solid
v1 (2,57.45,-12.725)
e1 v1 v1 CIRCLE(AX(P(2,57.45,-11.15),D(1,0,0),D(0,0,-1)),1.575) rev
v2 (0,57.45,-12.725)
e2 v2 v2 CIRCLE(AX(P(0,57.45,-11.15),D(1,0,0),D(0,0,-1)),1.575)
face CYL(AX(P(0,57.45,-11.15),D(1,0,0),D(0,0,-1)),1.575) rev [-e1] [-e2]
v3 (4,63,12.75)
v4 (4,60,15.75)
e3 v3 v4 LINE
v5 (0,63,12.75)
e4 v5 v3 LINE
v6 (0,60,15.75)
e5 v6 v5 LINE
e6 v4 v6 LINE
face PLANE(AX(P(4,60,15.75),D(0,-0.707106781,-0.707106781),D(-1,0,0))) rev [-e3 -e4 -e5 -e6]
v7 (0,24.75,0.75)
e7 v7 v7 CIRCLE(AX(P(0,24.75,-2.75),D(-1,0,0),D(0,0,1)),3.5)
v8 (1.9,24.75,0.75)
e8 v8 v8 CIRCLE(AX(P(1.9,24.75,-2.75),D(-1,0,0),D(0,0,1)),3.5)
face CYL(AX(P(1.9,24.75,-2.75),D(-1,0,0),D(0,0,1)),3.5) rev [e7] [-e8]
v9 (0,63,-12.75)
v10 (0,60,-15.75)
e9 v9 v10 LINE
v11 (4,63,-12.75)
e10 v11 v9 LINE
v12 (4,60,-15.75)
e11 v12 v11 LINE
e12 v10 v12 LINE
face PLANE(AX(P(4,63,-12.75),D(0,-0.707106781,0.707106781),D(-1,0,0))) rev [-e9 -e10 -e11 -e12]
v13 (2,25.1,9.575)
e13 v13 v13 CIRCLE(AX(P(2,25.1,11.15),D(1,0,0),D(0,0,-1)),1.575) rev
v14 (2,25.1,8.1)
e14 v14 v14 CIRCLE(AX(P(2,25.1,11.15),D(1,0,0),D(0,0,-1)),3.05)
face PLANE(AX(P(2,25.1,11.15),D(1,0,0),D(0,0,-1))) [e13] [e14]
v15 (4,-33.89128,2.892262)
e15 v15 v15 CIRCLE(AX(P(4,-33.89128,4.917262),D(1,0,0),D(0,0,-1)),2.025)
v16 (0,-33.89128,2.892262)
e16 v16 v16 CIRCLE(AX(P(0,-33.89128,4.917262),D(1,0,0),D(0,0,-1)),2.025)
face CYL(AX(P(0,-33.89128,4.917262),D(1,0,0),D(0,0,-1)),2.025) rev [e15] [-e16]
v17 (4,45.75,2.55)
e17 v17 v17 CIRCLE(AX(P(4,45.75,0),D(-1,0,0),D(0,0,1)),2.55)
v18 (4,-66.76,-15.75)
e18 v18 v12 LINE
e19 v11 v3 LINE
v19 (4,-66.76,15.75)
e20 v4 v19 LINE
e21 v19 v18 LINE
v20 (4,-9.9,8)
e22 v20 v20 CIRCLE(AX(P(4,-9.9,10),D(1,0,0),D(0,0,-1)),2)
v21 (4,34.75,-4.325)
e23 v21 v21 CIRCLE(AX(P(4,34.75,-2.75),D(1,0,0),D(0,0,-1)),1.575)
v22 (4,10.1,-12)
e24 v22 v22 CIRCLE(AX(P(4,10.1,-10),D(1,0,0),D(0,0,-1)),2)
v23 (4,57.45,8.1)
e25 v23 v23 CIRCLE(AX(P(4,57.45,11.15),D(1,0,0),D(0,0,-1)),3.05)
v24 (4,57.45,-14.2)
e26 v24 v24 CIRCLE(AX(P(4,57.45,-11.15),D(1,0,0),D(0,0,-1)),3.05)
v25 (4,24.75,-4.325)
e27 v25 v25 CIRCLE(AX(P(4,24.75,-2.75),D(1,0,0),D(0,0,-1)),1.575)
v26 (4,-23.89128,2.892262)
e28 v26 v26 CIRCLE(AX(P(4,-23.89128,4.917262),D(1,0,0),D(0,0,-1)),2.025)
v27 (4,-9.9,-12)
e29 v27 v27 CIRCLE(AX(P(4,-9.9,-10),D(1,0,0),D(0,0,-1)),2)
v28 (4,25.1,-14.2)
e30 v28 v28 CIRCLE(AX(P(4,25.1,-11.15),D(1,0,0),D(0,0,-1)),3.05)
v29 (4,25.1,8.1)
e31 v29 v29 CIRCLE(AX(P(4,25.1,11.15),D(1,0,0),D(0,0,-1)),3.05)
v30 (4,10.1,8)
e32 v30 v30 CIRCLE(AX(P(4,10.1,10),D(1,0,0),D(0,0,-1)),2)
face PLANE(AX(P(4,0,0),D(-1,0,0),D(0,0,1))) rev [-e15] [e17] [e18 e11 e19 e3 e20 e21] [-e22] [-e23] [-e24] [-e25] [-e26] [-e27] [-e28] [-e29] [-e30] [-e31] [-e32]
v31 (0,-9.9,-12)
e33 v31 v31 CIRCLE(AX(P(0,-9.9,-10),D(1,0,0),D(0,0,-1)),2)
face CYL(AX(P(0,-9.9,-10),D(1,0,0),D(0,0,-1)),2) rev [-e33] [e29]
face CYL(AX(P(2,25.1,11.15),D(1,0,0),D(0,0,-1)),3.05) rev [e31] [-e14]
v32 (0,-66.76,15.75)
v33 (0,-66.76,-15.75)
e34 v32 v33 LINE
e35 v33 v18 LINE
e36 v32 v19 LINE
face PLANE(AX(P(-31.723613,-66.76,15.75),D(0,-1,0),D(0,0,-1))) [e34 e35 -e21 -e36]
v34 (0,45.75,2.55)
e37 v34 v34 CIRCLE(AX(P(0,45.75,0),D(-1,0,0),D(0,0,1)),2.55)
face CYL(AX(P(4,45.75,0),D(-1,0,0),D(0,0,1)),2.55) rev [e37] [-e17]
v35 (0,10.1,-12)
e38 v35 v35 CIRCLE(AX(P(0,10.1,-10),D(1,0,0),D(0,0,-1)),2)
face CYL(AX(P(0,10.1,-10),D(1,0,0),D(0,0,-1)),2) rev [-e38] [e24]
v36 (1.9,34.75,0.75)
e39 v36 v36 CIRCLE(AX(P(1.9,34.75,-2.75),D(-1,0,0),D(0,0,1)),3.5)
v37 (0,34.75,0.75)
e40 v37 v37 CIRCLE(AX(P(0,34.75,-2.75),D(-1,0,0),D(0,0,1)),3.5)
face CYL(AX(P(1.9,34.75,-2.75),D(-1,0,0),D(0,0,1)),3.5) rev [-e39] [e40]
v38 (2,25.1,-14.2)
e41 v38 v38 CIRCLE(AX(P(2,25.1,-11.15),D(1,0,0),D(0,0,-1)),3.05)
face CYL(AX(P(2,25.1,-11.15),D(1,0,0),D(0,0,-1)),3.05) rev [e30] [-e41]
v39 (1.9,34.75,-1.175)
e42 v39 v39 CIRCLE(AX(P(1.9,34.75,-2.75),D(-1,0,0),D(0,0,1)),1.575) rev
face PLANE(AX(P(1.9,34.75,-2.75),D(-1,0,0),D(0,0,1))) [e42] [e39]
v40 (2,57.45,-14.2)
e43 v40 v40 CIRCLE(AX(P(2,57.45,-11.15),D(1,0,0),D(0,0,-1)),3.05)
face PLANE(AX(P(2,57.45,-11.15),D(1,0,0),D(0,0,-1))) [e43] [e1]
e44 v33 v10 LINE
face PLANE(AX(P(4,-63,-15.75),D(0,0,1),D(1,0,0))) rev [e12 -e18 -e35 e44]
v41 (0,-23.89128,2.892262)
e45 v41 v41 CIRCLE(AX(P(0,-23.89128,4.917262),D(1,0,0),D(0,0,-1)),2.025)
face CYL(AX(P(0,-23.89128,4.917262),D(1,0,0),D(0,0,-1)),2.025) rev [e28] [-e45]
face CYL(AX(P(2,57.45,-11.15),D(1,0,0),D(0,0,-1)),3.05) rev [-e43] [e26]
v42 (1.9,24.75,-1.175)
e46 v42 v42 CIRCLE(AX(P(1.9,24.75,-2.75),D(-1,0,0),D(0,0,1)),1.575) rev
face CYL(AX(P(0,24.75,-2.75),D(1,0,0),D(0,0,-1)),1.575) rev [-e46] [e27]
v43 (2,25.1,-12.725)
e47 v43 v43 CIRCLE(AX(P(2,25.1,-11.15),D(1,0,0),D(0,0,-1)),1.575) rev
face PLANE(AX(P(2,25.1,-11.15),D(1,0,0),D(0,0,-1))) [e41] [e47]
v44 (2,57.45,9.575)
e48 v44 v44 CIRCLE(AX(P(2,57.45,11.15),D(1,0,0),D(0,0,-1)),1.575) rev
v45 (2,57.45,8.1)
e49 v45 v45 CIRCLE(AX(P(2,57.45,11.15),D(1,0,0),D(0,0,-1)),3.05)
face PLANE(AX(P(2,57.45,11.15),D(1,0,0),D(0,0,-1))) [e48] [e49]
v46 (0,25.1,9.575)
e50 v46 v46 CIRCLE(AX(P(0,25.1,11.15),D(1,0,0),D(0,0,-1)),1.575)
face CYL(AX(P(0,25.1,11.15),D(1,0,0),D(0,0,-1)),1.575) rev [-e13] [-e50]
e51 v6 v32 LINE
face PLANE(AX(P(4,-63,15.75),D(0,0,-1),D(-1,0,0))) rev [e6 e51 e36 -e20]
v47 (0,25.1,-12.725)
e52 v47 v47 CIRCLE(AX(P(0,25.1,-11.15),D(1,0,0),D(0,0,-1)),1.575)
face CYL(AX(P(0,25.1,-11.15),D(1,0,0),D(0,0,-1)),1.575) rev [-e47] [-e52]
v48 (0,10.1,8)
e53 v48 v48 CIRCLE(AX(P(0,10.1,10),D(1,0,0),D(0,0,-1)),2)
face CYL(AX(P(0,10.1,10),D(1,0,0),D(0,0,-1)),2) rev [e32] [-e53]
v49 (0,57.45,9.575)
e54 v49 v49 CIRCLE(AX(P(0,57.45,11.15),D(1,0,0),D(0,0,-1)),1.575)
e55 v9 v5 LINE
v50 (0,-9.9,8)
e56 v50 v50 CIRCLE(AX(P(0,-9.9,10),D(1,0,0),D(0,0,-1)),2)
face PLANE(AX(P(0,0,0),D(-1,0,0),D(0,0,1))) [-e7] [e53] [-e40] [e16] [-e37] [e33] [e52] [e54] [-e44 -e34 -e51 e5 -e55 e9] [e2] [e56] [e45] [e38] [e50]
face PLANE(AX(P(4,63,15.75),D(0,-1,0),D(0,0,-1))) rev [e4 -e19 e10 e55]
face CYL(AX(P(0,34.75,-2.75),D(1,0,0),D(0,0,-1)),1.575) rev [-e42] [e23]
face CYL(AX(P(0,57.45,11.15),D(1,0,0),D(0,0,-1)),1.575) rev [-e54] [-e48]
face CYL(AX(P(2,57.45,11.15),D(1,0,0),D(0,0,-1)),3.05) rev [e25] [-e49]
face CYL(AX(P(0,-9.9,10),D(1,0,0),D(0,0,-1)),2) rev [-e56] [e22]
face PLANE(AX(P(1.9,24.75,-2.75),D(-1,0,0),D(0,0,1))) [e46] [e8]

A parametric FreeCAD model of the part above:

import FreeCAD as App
import Part
import Sketcher

V = App.Vector
Q = App.Units.Quantity


def edges_at(feature, points):
    """Names of the edges that pass closest to the given points."""
    edges = feature.Shape.Edges
    near = lambda p: min(range(len(edges)), key=lambda i: edges[i].distToShape(Part.Vertex(*p))[0])
    return sorted({f"Edge{near(p) + 1}" for p in points})

doc = App.newDocument("Part")
body = doc.addObject("PartDesign::Body", "Body")

# Sketch on YZ plane
sketch1 = body.newObject("Sketcher::SketchObject", "Sketch")
sketch1.AttachmentSupport = (doc.getObject("YZ_Plane"), [""])
sketch1.MapMode = "FlatFace"
sketch1.addGeometry(Part.LineSegment(V(63, 15.75, 0), V(-63, 15.75, 0)), False)
sketch1.addGeometry(Part.LineSegment(V(-63, 15.75, 0), V(-63, -15.75, 0)), False)
sketch1.addGeometry(Part.LineSegment(V(-63, -15.75, 0), V(63, -15.75, 0)), False)
sketch1.addGeometry(Part.LineSegment(V(63, -15.75, 0), V(63, 15.75, 0)), False)
sketch1.addConstraint(Sketcher.Constraint("Coincident", 0, 2, 1, 1))
sketch1.addConstraint(Sketcher.Constraint("Coincident", 1, 2, 2, 1))
sketch1.addConstraint(Sketcher.Constraint("Coincident", 2, 2, 3, 1))
sketch1.addConstraint(Sketcher.Constraint("Coincident", 3, 2, 0, 1))
sketch1.addConstraint(Sketcher.Constraint("Horizontal", 0))
sketch1.addConstraint(Sketcher.Constraint("Vertical", 1))
sketch1.addConstraint(Sketcher.Constraint("Horizontal", 2))
sketch1.addConstraint(Sketcher.Constraint("Vertical", 3))
sketch1.addConstraint(Sketcher.Constraint("Symmetric", 0, 2, 2, 2, -1, 1))
sketch1.addConstraint(Sketcher.Constraint("DistanceX", 0, 2, 0, 1, Q("126 mm")))
sketch1.addConstraint(Sketcher.Constraint("DistanceY", 1, 2, 1, 1, Q("31.5 mm")))
pad1 = body.newObject("PartDesign::Pad", "Pad")
pad1.Profile = sketch1
pad1.Length = 4

# Sketch on YZ plane
sketch2 = body.newObject("Sketcher::SketchObject", "Sketch001")
sketch2.AttachmentSupport = (doc.getObject("YZ_Plane"), [""])
sketch2.MapMode = "FlatFace"
sketch2.AttachmentOffset = App.Placement(V(0, 0, 4), App.Rotation())
sketch2.addGeometry(Part.Circle(V(10.1, 10, 0), V(0, 0, 1), 2), False)
sketch2.addGeometry(Part.Circle(V(10.1, -10, 0), V(0, 0, 1), 2), False)
sketch2.addGeometry(Part.Circle(V(-9.9, 10, 0), V(0, 0, 1), 2), False)
sketch2.addGeometry(Part.Circle(V(-9.9, -10, 0), V(0, 0, 1), 2), False)
sketch2.addConstraint(Sketcher.Constraint("Equal", 0, 1))
sketch2.addConstraint(Sketcher.Constraint("Equal", 1, 2))
sketch2.addConstraint(Sketcher.Constraint("Equal", 2, 3))
sketch2.addConstraint(Sketcher.Constraint("Symmetric", 0, 3, 1, 3, -1))
sketch2.addConstraint(Sketcher.Constraint("Symmetric", 2, 3, 3, 3, -1))
sketch2.addConstraint(Sketcher.Constraint("Horizontal", 0, 3, 2, 3))
sketch2.addConstraint(Sketcher.Constraint("Diameter", 0, Q("4 mm")))
sketch2.addConstraint(Sketcher.Constraint("DistanceY", -1, 1, 0, 3, Q("10 mm")))
sketch2.addConstraint(Sketcher.Constraint("DistanceX", 2, 3, 0, 3, Q("20 mm")))
sketch2.addConstraint(Sketcher.Constraint("DistanceX", -1, 1, 0, 3, Q("10.1 mm")))
pocket1 = body.newObject("PartDesign::Pocket", "Pocket")
pocket1.Profile = sketch2
pocket1.Type = "ThroughAll"

# Sketch on YZ plane
sketch3 = body.newObject("Sketcher::SketchObject", "Sketch002")
sketch3.AttachmentSupport = (doc.getObject("YZ_Plane"), [""])
sketch3.MapMode = "FlatFace"
sketch3.addGeometry(Part.Circle(V(45.75, 0, 0), V(0, 0, 1), 2.55), False)
sketch3.addConstraint(Sketcher.Constraint("PointOnObject", 0, 3, -1))
sketch3.addConstraint(Sketcher.Constraint("Diameter", 0, Q("5.1 mm")))
sketch3.addConstraint(Sketcher.Constraint("DistanceX", -1, 1, 0, 3, Q("45.75 mm")))
pocket2 = body.newObject("PartDesign::Pocket", "Pocket001")
pocket2.Profile = sketch3
pocket2.Type = "ThroughAll"
pocket2.Reversed = True

# Sketch on YZ plane
sketch4 = body.newObject("Sketcher::SketchObject", "Sketch003")
sketch4.AttachmentSupport = (doc.getObject("YZ_Plane"), [""])
sketch4.MapMode = "FlatFace"
sketch4.AttachmentOffset = App.Placement(V(0, 0, 4), App.Rotation())
sketch4.addGeometry(Part.Circle(V(34.75, -2.75, 0), V(0, 0, 1), 1.575), False)
sketch4.addGeometry(Part.Circle(V(24.75, -2.75, 0), V(0, 0, 1), 1.575), False)
sketch4.addConstraint(Sketcher.Constraint("Equal", 0, 1))
sketch4.addConstraint(Sketcher.Constraint("Horizontal", 0, 3, 1, 3))
sketch4.addConstraint(Sketcher.Constraint("Diameter", 0, Q("3.15 mm")))
sketch4.addConstraint(Sketcher.Constraint("DistanceX", 1, 3, 0, 3, Q("10 mm")))
sketch4.addConstraint(Sketcher.Constraint("DistanceX", -1, 1, 0, 3, Q("34.75 mm")))
sketch4.addConstraint(Sketcher.Constraint("DistanceY", 0, 3, -1, 1, Q("2.75 mm")))
pocket3 = body.newObject("PartDesign::Pocket", "Pocket002")
pocket3.Profile = sketch4
pocket3.Type = "ThroughAll"

# Sketch on YZ plane
sketch5 = body.newObject("Sketcher::SketchObject", "Sketch004")
sketch5.AttachmentSupport = (doc.getObject("YZ_Plane"), [""])
sketch5.MapMode = "FlatFace"
sketch5.AttachmentOffset = App.Placement(V(0, 0, 4), App.Rotation())
sketch5.addGeometry(Part.Circle(V(57.45, 11.15, 0), V(0, 0, 1), 1.575), False)
sketch5.addGeometry(Part.Circle(V(57.45, -11.15, 0), V(0, 0, 1), 1.575), False)
sketch5.addGeometry(Part.Circle(V(25.1, 11.15, 0), V(0, 0, 1), 1.575), False)
sketch5.addGeometry(Part.Circle(V(25.1, -11.15, 0), V(0, 0, 1), 1.575), False)
sketch5.addConstraint(Sketcher.Constraint("Equal", 0, 1))
sketch5.addConstraint(Sketcher.Constraint("Equal", 1, 2))
sketch5.addConstraint(Sketcher.Constraint("Equal", 2, 3))
sketch5.addConstraint(Sketcher.Constraint("Symmetric", 0, 3, 1, 3, -1))
sketch5.addConstraint(Sketcher.Constraint("Symmetric", 2, 3, 3, 3, -1))
sketch5.addConstraint(Sketcher.Constraint("Horizontal", 0, 3, 2, 3))
sketch5.addConstraint(Sketcher.Constraint("Diameter", 0, Q("3.15 mm")))
sketch5.addConstraint(Sketcher.Constraint("DistanceX", -1, 1, 2, 3, Q("25.1 mm")))
sketch5.addConstraint(Sketcher.Constraint("DistanceY", 1, 3, 0, 3, Q("22.3 mm")))
sketch5.addConstraint(Sketcher.Constraint("DistanceX", -1, 1, 0, 3, Q("57.45 mm")))
pocket4 = body.newObject("PartDesign::Pocket", "Pocket003")
pocket4.Profile = sketch5
pocket4.Type = "ThroughAll"
doc.recompute()

chamfer = body.newObject("PartDesign::Chamfer", "Chamfer")
chamfer.Base = (pocket4, edges_at(pocket4, [(2, 63, 15.75), (2, 63, -15.75)]))
chamfer.Size = 3

# Sketch on YZ plane
sketch6 = body.newObject("Sketcher::SketchObject", "Sketch005")
sketch6.AttachmentSupport = (doc.getObject("YZ_Plane"), [""])
sketch6.MapMode = "FlatFace"
sketch6.addGeometry(Part.Circle(V(24.75, -2.75, 0), V(0, 0, 1), 3.5), False)
sketch6.addGeometry(Part.Circle(V(34.75, -2.75, 0), V(0, 0, 1), 3.5), False)
sketch6.addConstraint(Sketcher.Constraint("Equal", 0, 1))
sketch6.addConstraint(Sketcher.Constraint("Horizontal", 0, 3, 1, 3))
sketch6.addConstraint(Sketcher.Constraint("Diameter", 0, Q("7 mm")))
sketch6.addConstraint(Sketcher.Constraint("DistanceX", 0, 3, 1, 3, Q("10 mm")))
sketch6.addConstraint(Sketcher.Constraint("DistanceX", -1, 1, 0, 3, Q("24.75 mm")))
sketch6.addConstraint(Sketcher.Constraint("DistanceY", 0, 3, -1, 1, Q("2.75 mm")))
pocket5 = body.newObject("PartDesign::Pocket", "Pocket004")
pocket5.Profile = sketch6
pocket5.Length = 1.9
pocket5.Reversed = True

# Sketch on YZ plane
sketch7 = body.newObject("Sketcher::SketchObject", "Sketch006")
sketch7.AttachmentSupport = (doc.getObject("YZ_Plane"), [""])
sketch7.MapMode = "FlatFace"
sketch7.AttachmentOffset = App.Placement(V(0, 0, 4), App.Rotation())
sketch7.addGeometry(Part.Circle(V(57.45, 11.15, 0), V(0, 0, 1), 3.05), False)
sketch7.addGeometry(Part.Circle(V(57.45, -11.15, 0), V(0, 0, 1), 3.05), False)
sketch7.addGeometry(Part.Circle(V(25.1, -11.15, 0), V(0, 0, 1), 3.05), False)
sketch7.addGeometry(Part.Circle(V(25.1, 11.15, 0), V(0, 0, 1), 3.05), False)
sketch7.addConstraint(Sketcher.Constraint("Equal", 0, 1))
sketch7.addConstraint(Sketcher.Constraint("Equal", 1, 2))
sketch7.addConstraint(Sketcher.Constraint("Equal", 2, 3))
sketch7.addConstraint(Sketcher.Constraint("Symmetric", 0, 3, 1, 3, -1))
sketch7.addConstraint(Sketcher.Constraint("Symmetric", 2, 3, 3, 3, -1))
sketch7.addConstraint(Sketcher.Constraint("Horizontal", 1, 3, 2, 3))
sketch7.addConstraint(Sketcher.Constraint("Diameter", 0, Q("6.1 mm")))
sketch7.addConstraint(Sketcher.Constraint("DistanceX", -1, 1, 2, 3, Q("25.1 mm")))
sketch7.addConstraint(Sketcher.Constraint("DistanceY", 1, 3, 0, 3, Q("22.3 mm")))
sketch7.addConstraint(Sketcher.Constraint("DistanceX", -1, 1, 0, 3, Q("57.45 mm")))
pocket6 = body.newObject("PartDesign::Pocket", "Pocket005")
pocket6.Profile = sketch7
pocket6.Length = 2

# Sketch on YZ plane
sketch8 = body.newObject("Sketcher::SketchObject", "Sketch007")
sketch8.AttachmentSupport = (doc.getObject("YZ_Plane"), [""])
sketch8.MapMode = "FlatFace"
sketch8.AttachmentOffset = App.Placement(V(0, 0, 4), App.Rotation())
sketch8.addGeometry(Part.LineSegment(V(-63, 15.75, 0), V(-66.76, 15.75, 0)), False)
sketch8.addGeometry(Part.LineSegment(V(-66.76, 15.75, 0), V(-66.76, -15.75, 0)), False)
sketch8.addGeometry(Part.LineSegment(V(-66.76, -15.75, 0), V(-63, -15.75, 0)), False)
sketch8.addGeometry(Part.LineSegment(V(-63, -15.75, 0), V(-63, 15.75, 0)), False)
sketch8.addConstraint(Sketcher.Constraint("Coincident", 0, 2, 1, 1))
sketch8.addConstraint(Sketcher.Constraint("Coincident", 1, 2, 2, 1))
sketch8.addConstraint(Sketcher.Constraint("Coincident", 2, 2, 3, 1))
sketch8.addConstraint(Sketcher.Constraint("Coincident", 3, 2, 0, 1))
sketch8.addConstraint(Sketcher.Constraint("Horizontal", 0))
sketch8.addConstraint(Sketcher.Constraint("Vertical", 1))
sketch8.addConstraint(Sketcher.Constraint("Horizontal", 2))
sketch8.addConstraint(Sketcher.Constraint("Vertical", 3))
sketch8.addConstraint(Sketcher.Constraint("DistanceY", 1, 2, 1, 1, Q("31.5 mm")))
sketch8.addConstraint(Sketcher.Constraint("DistanceX", 2, 2, -1, 1, Q("63 mm")))
sketch8.addConstraint(Sketcher.Constraint("DistanceX", 0, 2, 0, 1, Q("3.76 mm")))
sketch8.addConstraint(Sketcher.Constraint("DistanceY", -1, 1, 0, 2, Q("15.75 mm")))
pad2 = body.newObject("PartDesign::Pad", "Pad001")
pad2.Profile = sketch8
pad2.Length = 4
pad2.Reversed = True

# Sketch on YZ plane
sketch9 = body.newObject("Sketcher::SketchObject", "Sketch008")
sketch9.AttachmentSupport = (doc.getObject("YZ_Plane"), [""])
sketch9.MapMode = "FlatFace"
sketch9.AttachmentOffset = App.Placement(V(0, 0, 4), App.Rotation())
sketch9.addGeometry(Part.Circle(V(-23.89128, 4.917262, 0), V(0, 0, 1), 2.025), False)
sketch9.addGeometry(Part.Circle(V(-33.89128, 4.917262, 0), V(0, 0, 1), 2.025), False)
sketch9.addConstraint(Sketcher.Constraint("Equal", 0, 1))
sketch9.addConstraint(Sketcher.Constraint("Horizontal", 0, 3, 1, 3))
sketch9.addConstraint(Sketcher.Constraint("Diameter", 0, Q("4.05 mm")))
sketch9.addConstraint(Sketcher.Constraint("DistanceX", 1, 3, 0, 3, Q("10 mm")))
sketch9.addConstraint(Sketcher.Constraint("DistanceX", 0, 3, -1, 1, Q("23.89128 mm")))
sketch9.addConstraint(Sketcher.Constraint("DistanceY", -1, 1, 0, 3, Q("4.917262 mm")))
pocket7 = body.newObject("PartDesign::Pocket", "Pocket006")
pocket7.Profile = sketch9
pocket7.Type = "ThroughAll"

doc.recompute()
